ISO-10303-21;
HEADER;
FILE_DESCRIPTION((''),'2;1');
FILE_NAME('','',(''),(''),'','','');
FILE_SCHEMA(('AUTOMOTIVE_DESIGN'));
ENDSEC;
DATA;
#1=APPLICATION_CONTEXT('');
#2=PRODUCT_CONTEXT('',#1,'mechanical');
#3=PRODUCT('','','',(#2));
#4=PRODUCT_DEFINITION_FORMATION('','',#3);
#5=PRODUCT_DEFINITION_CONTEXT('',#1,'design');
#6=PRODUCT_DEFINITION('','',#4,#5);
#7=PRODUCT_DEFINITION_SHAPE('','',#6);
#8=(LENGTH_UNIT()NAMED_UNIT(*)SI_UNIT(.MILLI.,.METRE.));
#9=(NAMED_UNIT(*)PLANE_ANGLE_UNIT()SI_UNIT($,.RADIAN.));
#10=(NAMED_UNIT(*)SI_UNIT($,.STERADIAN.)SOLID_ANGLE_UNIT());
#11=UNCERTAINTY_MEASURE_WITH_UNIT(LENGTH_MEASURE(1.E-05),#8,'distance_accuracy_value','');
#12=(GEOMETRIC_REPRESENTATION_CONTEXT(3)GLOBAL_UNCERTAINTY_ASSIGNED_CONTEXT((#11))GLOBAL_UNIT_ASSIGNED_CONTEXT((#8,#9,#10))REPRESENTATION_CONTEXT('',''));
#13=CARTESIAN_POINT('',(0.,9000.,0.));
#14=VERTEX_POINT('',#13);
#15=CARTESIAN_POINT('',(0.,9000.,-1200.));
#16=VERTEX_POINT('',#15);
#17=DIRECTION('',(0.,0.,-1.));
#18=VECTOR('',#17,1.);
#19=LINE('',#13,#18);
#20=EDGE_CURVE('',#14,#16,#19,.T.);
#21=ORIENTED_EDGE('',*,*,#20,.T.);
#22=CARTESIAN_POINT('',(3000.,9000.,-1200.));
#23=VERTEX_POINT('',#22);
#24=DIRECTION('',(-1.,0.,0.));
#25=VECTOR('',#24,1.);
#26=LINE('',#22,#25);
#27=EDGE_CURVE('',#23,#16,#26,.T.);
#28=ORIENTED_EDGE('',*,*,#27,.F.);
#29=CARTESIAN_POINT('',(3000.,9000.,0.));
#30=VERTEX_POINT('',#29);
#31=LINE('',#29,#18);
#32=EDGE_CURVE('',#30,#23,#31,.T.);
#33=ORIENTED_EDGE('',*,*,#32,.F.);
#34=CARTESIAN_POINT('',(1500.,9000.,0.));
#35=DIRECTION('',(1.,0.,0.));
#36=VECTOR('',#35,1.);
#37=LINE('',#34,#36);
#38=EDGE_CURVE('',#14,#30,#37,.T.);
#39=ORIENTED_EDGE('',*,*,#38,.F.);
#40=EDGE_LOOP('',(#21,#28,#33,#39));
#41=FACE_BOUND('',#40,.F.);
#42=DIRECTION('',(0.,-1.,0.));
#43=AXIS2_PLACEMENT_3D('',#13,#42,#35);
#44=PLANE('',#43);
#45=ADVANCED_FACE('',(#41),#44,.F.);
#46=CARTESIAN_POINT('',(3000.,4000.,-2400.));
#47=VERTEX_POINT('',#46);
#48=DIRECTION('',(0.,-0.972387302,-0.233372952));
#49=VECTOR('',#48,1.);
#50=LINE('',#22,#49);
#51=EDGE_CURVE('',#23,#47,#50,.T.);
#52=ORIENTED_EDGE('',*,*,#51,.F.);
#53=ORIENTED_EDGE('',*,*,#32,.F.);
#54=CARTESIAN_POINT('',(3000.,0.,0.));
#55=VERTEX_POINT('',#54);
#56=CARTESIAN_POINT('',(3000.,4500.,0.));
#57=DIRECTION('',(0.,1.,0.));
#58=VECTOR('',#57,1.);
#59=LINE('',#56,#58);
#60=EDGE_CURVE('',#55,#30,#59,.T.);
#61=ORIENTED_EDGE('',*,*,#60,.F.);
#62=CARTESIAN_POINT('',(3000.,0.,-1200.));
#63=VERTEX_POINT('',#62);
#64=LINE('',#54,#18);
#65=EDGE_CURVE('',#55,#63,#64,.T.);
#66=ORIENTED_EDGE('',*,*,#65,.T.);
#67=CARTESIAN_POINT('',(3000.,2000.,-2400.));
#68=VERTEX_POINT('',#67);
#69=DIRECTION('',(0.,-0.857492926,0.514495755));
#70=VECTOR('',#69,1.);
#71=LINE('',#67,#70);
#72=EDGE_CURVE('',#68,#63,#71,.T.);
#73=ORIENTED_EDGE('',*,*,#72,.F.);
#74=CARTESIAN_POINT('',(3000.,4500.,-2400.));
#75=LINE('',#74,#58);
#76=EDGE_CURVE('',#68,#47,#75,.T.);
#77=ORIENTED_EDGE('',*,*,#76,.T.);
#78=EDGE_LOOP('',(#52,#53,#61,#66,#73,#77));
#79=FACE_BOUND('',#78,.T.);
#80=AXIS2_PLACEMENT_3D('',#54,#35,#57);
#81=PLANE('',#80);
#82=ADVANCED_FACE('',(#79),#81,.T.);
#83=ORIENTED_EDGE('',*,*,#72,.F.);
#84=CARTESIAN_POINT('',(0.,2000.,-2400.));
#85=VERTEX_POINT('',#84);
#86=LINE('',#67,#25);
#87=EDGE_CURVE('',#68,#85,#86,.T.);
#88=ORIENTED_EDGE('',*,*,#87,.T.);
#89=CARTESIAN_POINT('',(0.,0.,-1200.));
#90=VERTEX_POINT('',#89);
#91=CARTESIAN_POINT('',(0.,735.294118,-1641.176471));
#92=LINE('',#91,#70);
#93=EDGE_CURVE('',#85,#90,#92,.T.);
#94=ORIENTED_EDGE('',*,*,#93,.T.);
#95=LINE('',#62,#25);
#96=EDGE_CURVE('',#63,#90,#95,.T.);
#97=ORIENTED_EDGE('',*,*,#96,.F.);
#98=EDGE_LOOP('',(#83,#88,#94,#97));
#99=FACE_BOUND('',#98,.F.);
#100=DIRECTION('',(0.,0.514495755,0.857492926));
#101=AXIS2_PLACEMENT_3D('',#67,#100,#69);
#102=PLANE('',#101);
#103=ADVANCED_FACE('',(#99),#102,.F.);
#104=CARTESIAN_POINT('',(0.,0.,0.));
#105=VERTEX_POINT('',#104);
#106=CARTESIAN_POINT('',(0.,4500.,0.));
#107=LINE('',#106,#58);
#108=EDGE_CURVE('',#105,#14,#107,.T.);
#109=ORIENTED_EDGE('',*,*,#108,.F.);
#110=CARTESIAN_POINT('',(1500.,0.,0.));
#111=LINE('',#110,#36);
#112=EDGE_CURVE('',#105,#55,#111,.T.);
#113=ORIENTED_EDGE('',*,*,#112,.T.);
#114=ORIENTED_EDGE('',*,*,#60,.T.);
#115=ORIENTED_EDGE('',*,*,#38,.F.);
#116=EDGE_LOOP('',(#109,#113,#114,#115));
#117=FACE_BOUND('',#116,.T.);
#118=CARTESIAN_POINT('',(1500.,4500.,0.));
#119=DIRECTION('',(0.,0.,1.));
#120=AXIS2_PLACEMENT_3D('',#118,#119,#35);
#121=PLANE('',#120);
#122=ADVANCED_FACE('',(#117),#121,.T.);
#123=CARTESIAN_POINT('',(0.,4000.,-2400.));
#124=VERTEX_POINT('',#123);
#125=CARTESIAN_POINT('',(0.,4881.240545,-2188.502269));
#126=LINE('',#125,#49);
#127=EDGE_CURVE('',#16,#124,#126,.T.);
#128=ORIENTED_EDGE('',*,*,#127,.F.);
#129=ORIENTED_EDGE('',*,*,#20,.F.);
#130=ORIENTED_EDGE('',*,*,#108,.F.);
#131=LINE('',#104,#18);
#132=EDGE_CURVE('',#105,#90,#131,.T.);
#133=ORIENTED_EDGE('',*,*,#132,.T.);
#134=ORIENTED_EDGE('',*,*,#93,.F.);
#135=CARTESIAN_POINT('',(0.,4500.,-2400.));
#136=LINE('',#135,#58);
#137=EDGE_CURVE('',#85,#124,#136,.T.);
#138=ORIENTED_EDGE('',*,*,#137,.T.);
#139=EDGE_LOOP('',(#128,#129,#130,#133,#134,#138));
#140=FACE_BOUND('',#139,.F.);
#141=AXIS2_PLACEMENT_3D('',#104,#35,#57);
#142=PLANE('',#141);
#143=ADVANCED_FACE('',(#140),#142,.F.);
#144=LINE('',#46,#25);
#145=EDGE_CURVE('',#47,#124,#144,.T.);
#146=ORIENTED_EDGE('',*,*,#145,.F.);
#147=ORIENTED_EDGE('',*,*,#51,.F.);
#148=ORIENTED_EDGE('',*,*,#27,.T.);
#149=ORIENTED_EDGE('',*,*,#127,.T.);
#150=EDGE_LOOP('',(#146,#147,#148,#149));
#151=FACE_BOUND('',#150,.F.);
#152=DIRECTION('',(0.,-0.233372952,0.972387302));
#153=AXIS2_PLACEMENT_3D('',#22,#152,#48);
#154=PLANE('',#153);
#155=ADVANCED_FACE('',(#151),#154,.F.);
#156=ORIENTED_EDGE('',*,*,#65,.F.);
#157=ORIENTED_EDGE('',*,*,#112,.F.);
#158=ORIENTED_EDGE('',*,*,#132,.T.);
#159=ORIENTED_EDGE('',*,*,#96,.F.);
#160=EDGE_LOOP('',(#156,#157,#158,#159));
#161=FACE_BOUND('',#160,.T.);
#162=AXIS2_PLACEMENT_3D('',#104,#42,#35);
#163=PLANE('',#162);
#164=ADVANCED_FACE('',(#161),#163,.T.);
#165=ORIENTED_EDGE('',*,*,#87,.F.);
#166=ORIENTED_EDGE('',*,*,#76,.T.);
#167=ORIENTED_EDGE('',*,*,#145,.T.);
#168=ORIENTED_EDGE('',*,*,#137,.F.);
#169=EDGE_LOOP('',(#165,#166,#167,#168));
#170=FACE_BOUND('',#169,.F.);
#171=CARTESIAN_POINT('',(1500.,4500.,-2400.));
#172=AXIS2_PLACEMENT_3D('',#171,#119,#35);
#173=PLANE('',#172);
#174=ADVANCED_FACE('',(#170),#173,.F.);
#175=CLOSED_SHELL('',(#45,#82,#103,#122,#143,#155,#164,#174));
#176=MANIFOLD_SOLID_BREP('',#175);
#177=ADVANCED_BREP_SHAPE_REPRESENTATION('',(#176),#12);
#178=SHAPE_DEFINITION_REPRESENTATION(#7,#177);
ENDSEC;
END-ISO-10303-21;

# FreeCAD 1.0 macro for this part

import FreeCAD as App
import Part
import Sketcher
from FreeCAD import Vector


def add_polygon(sketch, points):
    """Adds a closed chain of lines whose ends are joined by coincident constraints."""
    first, n = sketch.GeometryCount, len(points)
    for a, b in zip(points, points[1:] + points[:1]):
        sketch.addGeometry(Part.LineSegment(App.Vector(*a, 0), App.Vector(*b, 0)), False)
    for i in range(n):
        sketch.addConstraint(Sketcher.Constraint("Coincident", first + i, 2, first + (i + 1) % n, 1))

doc = App.newDocument("Part")
body = doc.addObject("PartDesign::Body", "Body")

# Sketch on XY plane
sketch1 = body.newObject("Sketcher::SketchObject", "Sketch")
sketch1.AttachmentSupport = (doc.getObject("XY_Plane"), [""])
sketch1.MapMode = "FlatFace"
add_polygon(sketch1, [(0, 9000), (0, 0), (3000, 0), (3000, 9000)])  # lines 0-3
sketch1.addConstraint(Sketcher.Constraint("Vertical", 0))
sketch1.addConstraint(Sketcher.Constraint("Horizontal", 1))
sketch1.addConstraint(Sketcher.Constraint("Vertical", 2))
sketch1.addConstraint(Sketcher.Constraint("Horizontal", 3))
sketch1.addConstraint(Sketcher.Constraint("Coincident", 0, 2, -1, 1))
sketch1.addConstraint(Sketcher.Constraint("DistanceX", 1, 1, 1, 2, 3000.0))
sketch1.addConstraint(Sketcher.Constraint("DistanceY", 0, 2, 0, 1, 9000.0))
pad1 = body.newObject("PartDesign::Pad", "Pad")
pad1.Profile = sketch1
pad1.Length = 2400
pad1.Reversed = True

# Sketch on YZ plane
sketch2 = body.newObject("Sketcher::SketchObject", "Sketch001")
sketch2.AttachmentSupport = (doc.getObject("YZ_Plane"), [""])
sketch2.MapMode = "FlatFace"
sketch2.AttachmentOffset = App.Placement(Vector(0, 0, 3000), App.Rotation())
add_polygon(sketch2, [(0, -1200), (0, -2400), (2000, -2400)])  # lines 0-2
add_polygon(sketch2, [(9000, -1200), (4000, -2400), (9000, -2400)])  # lines 3-5
sketch2.addConstraint(Sketcher.Constraint("Vertical", 0))
sketch2.addConstraint(Sketcher.Constraint("Horizontal", 1))
sketch2.addConstraint(Sketcher.Constraint("Horizontal", 4))
sketch2.addConstraint(Sketcher.Constraint("Vertical", 5))
sketch2.addConstraint(Sketcher.Constraint("PointOnObject", 0, 2, -2))
sketch2.addConstraint(Sketcher.Constraint("Horizontal", 1, 2, 3, 2))
sketch2.addConstraint(Sketcher.Constraint("Horizontal", 2, 2, 5, 2))
sketch2.addConstraint(Sketcher.Constraint("DistanceX", 1, 1, 1, 2, 2000.0))
sketch2.addConstraint(Sketcher.Constraint("DistanceX", 4, 1, 4, 2, 5000.0))
sketch2.addConstraint(Sketcher.Constraint("DistanceY", 0, 2, 0, 1, 1200.0))
sketch2.addConstraint(Sketcher.Constraint("DistanceY", 0, 2, -1, 1, 2400.0))
sketch2.addConstraint(Sketcher.Constraint("DistanceX", -1, 1, 3, 2, 4000.0))
pocket1 = body.newObject("PartDesign::Pocket", "Pocket")
pocket1.Profile = sketch2
pocket1.Type = "ThroughAll"

doc.recompute()
